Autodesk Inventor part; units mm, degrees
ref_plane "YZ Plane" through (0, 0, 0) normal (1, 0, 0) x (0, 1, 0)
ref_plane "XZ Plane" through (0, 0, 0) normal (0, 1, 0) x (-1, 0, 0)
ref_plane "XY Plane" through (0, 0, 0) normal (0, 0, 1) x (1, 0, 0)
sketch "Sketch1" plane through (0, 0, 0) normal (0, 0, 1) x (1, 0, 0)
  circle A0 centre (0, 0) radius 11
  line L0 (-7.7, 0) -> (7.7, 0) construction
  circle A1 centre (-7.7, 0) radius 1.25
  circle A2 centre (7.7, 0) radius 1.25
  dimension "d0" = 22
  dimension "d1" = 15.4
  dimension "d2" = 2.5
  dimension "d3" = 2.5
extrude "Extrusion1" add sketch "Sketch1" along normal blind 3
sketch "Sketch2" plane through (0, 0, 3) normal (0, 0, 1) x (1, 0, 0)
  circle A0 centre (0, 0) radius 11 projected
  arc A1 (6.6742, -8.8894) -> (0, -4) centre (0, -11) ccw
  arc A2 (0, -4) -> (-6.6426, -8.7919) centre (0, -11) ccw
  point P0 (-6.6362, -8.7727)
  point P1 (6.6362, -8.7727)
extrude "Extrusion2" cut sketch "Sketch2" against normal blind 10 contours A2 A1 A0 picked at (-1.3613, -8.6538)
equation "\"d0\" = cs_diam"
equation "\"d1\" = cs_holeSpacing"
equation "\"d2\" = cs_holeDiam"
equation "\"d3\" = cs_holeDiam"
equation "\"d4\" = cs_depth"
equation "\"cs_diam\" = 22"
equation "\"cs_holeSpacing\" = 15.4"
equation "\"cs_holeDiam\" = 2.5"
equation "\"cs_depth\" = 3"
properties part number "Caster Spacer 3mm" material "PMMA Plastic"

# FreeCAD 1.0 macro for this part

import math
import FreeCAD as App
import Part
import Sketcher
from FreeCAD import Vector
Q = App.Units.Quantity

doc = App.newDocument("Part")
body = doc.addObject("PartDesign::Body", "Body")

# Sketch on XY plane
sketch1 = body.newObject("Sketcher::SketchObject", "Sketch")
sketch1.AttachmentSupport = (doc.getObject("XY_Plane"), [""])
sketch1.MapMode = "FlatFace"
sketch1.addGeometry([
    Part.Circle(Vector(0, 0, 0), Vector(0, 0, 1), 11),
    Part.Circle(Vector(-7.7, 0, 0), Vector(0, 0, 1), 1.2),
    Part.Circle(Vector(7.7, 0, 0), Vector(0, 0, 1), 1.2),
], False)
sketch1.addConstraint([
    Sketcher.Constraint("Coincident", 0, 3, -1, 1),
    Sketcher.Constraint("Equal", 1, 2),
    Sketcher.Constraint("Symmetric", 1, 3, 2, 3, -1, 1),
    Sketcher.Constraint("PointOnObject", 1, 3, -1),
    Sketcher.Constraint("Diameter", 0, Q("22 mm")),
    Sketcher.Constraint("Diameter", 1, Q("2.5 mm")),
    Sketcher.Constraint("DistanceX", 1, 3, 2, 3, Q("15.4 mm")),
])
pad1 = body.newObject("PartDesign::Pad", "Pad")
pad1.Profile = sketch1
pad1.Length = 3

# Sketch on XY plane
sketch2 = body.newObject("Sketcher::SketchObject", "Sketch001")
sketch2.AttachmentSupport = (doc.getObject("XY_Plane"), [""])
sketch2.MapMode = "FlatFace"
sketch2.AttachmentOffset = App.Placement(Vector(0, 0, 3), App.Rotation())
sketch2.addGeometry([
    Part.ArcOfCircle(Part.Circle(Vector(0, -11, 0), Vector(0, 0, 1), 7), math.radians(90), math.radians(161)),
    Part.ArcOfCircle(Part.Circle(Vector(0, 0, 0), Vector(0, 0, 1), 11), math.radians(-127), math.radians(-53)),
    Part.ArcOfCircle(Part.Circle(Vector(0, -11, 0), Vector(0, 0, 1), 7), math.radians(19), math.radians(90)),
], False)
sketch2.addConstraint([
    Sketcher.Constraint("Coincident", 0, 2, 1, 1),
    Sketcher.Constraint("Coincident", 1, 2, 2, 1),
    Sketcher.Constraint("Tangent", 2, 2, 0, 1),
    Sketcher.Constraint("Coincident", 1, 3, -1, 1),
    Sketcher.Constraint("Equal", 0, 2),
    Sketcher.Constraint("PointOnObject", 0, 3, -2),
    Sketcher.Constraint("PointOnObject", 2, 2, -2),
    Sketcher.Constraint("Radius", 0, Q("7 mm")),
    Sketcher.Constraint("Radius", 1, Q("11 mm")),
    Sketcher.Constraint("DistanceY", 0, 3, -1, 1, Q("11 mm")),
])
pocket1 = body.newObject("PartDesign::Pocket", "Pocket")
pocket1.Profile = sketch2
pocket1.Length = 10

doc.recompute()
